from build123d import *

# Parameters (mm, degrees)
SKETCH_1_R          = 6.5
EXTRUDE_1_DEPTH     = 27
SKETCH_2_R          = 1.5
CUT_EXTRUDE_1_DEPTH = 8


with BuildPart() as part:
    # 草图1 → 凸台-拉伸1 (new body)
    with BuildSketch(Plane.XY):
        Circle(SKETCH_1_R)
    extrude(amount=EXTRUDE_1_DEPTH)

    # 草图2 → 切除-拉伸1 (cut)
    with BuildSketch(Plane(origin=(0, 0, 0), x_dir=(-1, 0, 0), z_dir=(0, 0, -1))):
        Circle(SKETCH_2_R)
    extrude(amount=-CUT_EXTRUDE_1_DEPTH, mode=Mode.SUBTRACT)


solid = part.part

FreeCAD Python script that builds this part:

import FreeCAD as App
import Part
import Sketcher
Q = App.Units.Quantity

doc = App.newDocument("Part")
body = doc.addObject("PartDesign::Body", "Body")

# Sketch on XY plane
sketch1 = body.newObject("Sketcher::SketchObject", "Sketch")
sketch1.AttachmentSupport = (doc.getObject("XY_Plane"), [""])
sketch1.MapMode = "FlatFace"
sketch1.addGeometry(Part.Circle(App.Vector(0, 0, 0), App.Vector(0, 0, 1), 6.5), False)
sketch1.addConstraint(Sketcher.Constraint("Coincident", 0, 3, -1, 1))
sketch1.addConstraint(Sketcher.Constraint("Diameter", 0, Q("13 mm")))
pad1 = body.newObject("PartDesign::Pad", "Pad")
pad1.Profile = sketch1
pad1.Length = 27

# Sketch on XY plane
sketch2 = body.newObject("Sketcher::SketchObject", "Sketch001")
sketch2.AttachmentSupport = (doc.getObject("XY_Plane"), [""])
sketch2.MapMode = "FlatFace"
sketch2.addGeometry(Part.Circle(App.Vector(0, 0, 0), App.Vector(0, 0, 1), 1.5), False)
sketch2.addConstraint(Sketcher.Constraint("Coincident", 0, 3, -1, 1))
sketch2.addConstraint(Sketcher.Constraint("Diameter", 0, Q("3 mm")))
pocket1 = body.newObject("PartDesign::Pocket", "Pocket")
pocket1.Profile = sketch2
pocket1.Length = 8
pocket1.Reversed = True

doc.recompute()
